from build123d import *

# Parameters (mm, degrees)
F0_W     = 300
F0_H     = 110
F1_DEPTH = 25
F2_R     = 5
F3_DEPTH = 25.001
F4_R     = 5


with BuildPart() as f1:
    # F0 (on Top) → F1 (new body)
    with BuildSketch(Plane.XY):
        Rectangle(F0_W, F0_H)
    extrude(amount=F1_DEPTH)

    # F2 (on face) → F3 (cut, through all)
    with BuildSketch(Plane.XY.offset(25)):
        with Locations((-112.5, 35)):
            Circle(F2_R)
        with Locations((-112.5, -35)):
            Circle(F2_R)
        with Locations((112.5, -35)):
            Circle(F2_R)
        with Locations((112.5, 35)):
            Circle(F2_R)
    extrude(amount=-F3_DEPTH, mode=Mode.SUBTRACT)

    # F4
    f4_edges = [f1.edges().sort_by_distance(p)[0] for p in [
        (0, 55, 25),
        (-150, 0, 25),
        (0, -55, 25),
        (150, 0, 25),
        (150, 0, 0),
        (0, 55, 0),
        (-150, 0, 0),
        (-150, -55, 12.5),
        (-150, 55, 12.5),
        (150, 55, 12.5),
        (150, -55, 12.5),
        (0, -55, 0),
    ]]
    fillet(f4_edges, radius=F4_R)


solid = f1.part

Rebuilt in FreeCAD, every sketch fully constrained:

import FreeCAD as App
import Part
import Sketcher

V = App.Vector
Q = App.Units.Quantity


def edges_at(feature, points):
    """Names of the edges that pass closest to the given points."""
    edges = feature.Shape.Edges
    near = lambda p: min(range(len(edges)), key=lambda i: edges[i].distToShape(Part.Vertex(*p))[0])
    return sorted({f"Edge{near(p) + 1}" for p in points})


def add_polygon(sketch, points):
    """Adds a closed chain of lines whose ends are joined by coincident constraints."""
    first, n = sketch.GeometryCount, len(points)
    for a, b in zip(points, points[1:] + points[:1]):
        sketch.addGeometry(Part.LineSegment(App.Vector(*a, 0), App.Vector(*b, 0)), False)
    for i in range(n):
        sketch.addConstraint(Sketcher.Constraint("Coincident", first + i, 2, first + (i + 1) % n, 1))

doc = App.newDocument("Part")
body = doc.addObject("PartDesign::Body", "Body")

# Sketch on XY plane
sketch1 = body.newObject("Sketcher::SketchObject", "Sketch")
sketch1.AttachmentSupport = (doc.getObject("XY_Plane"), [""])
sketch1.MapMode = "FlatFace"
add_polygon(sketch1, [(-150, 55), (-150, -55), (150, -55), (150, 55)])  # lines 0-3
sketch1.addConstraint([
    Sketcher.Constraint("Vertical", 0),
    Sketcher.Constraint("Horizontal", 1),
    Sketcher.Constraint("Vertical", 2),
    Sketcher.Constraint("Horizontal", 3),
    Sketcher.Constraint("Symmetric", 0, 2, 2, 2, -1, 1),
    Sketcher.Constraint("DistanceX", 1, 1, 1, 2, Q("300 mm")),
    Sketcher.Constraint("DistanceY", 0, 2, 0, 1, Q("110 mm")),
])
pad1 = body.newObject("PartDesign::Pad", "Pad")
pad1.Profile = sketch1
pad1.Length = 25

# Sketch on XY plane
sketch2 = body.newObject("Sketcher::SketchObject", "Sketch001")
sketch2.AttachmentSupport = (doc.getObject("XY_Plane"), [""])
sketch2.MapMode = "FlatFace"
sketch2.AttachmentOffset = App.Placement(V(0, 0, 25), App.Rotation())
sketch2.addGeometry([
    Part.Circle(V(-112.5, 35, 0), V(0, 0, 1), 5),
    Part.Circle(V(-112.5, -35, 0), V(0, 0, 1), 5),
    Part.Circle(V(112.5, -35, 0), V(0, 0, 1), 5),
    Part.Circle(V(112.5, 35, 0), V(0, 0, 1), 5),
], False)
sketch2.addConstraint([
    Sketcher.Constraint("Equal", 0, 1),
    Sketcher.Constraint("Equal", 1, 2),
    Sketcher.Constraint("Equal", 2, 3),
    Sketcher.Constraint("Symmetric", 0, 3, 2, 3, -1, 1),
    Sketcher.Constraint("Symmetric", 1, 3, 3, 3, -1, 1),
    Sketcher.Constraint("Symmetric", 1, 3, 2, 3, -2),
    Sketcher.Constraint("Diameter", 0, Q("10 mm")),
    Sketcher.Constraint("DistanceY", -1, 1, 0, 3, Q("35 mm")),
    Sketcher.Constraint("DistanceX", 1, 3, 2, 3, Q("225 mm")),
])
pocket1 = body.newObject("PartDesign::Pocket", "Pocket")
pocket1.Profile = sketch2
pocket1.Type = "ThroughAll"
doc.recompute()

fillet = body.newObject("PartDesign::Fillet", "Fillet")
fillet.Base = (pocket1, edges_at(pocket1, [
    (0, 55, 25),
    (-150, 0, 25),
    (0, -55, 25),
    (150, 0, 25),
    (150, 0, 0),
    (0, 55, 0),
    (-150, 0, 0),
    (-150, -55, 12.5),
    (-150, 55, 12.5),
    (150, 55, 12.5),
    (150, -55, 12.5),
    (0, -55, 0),
]))
fillet.Radius = 5

doc.recompute()
